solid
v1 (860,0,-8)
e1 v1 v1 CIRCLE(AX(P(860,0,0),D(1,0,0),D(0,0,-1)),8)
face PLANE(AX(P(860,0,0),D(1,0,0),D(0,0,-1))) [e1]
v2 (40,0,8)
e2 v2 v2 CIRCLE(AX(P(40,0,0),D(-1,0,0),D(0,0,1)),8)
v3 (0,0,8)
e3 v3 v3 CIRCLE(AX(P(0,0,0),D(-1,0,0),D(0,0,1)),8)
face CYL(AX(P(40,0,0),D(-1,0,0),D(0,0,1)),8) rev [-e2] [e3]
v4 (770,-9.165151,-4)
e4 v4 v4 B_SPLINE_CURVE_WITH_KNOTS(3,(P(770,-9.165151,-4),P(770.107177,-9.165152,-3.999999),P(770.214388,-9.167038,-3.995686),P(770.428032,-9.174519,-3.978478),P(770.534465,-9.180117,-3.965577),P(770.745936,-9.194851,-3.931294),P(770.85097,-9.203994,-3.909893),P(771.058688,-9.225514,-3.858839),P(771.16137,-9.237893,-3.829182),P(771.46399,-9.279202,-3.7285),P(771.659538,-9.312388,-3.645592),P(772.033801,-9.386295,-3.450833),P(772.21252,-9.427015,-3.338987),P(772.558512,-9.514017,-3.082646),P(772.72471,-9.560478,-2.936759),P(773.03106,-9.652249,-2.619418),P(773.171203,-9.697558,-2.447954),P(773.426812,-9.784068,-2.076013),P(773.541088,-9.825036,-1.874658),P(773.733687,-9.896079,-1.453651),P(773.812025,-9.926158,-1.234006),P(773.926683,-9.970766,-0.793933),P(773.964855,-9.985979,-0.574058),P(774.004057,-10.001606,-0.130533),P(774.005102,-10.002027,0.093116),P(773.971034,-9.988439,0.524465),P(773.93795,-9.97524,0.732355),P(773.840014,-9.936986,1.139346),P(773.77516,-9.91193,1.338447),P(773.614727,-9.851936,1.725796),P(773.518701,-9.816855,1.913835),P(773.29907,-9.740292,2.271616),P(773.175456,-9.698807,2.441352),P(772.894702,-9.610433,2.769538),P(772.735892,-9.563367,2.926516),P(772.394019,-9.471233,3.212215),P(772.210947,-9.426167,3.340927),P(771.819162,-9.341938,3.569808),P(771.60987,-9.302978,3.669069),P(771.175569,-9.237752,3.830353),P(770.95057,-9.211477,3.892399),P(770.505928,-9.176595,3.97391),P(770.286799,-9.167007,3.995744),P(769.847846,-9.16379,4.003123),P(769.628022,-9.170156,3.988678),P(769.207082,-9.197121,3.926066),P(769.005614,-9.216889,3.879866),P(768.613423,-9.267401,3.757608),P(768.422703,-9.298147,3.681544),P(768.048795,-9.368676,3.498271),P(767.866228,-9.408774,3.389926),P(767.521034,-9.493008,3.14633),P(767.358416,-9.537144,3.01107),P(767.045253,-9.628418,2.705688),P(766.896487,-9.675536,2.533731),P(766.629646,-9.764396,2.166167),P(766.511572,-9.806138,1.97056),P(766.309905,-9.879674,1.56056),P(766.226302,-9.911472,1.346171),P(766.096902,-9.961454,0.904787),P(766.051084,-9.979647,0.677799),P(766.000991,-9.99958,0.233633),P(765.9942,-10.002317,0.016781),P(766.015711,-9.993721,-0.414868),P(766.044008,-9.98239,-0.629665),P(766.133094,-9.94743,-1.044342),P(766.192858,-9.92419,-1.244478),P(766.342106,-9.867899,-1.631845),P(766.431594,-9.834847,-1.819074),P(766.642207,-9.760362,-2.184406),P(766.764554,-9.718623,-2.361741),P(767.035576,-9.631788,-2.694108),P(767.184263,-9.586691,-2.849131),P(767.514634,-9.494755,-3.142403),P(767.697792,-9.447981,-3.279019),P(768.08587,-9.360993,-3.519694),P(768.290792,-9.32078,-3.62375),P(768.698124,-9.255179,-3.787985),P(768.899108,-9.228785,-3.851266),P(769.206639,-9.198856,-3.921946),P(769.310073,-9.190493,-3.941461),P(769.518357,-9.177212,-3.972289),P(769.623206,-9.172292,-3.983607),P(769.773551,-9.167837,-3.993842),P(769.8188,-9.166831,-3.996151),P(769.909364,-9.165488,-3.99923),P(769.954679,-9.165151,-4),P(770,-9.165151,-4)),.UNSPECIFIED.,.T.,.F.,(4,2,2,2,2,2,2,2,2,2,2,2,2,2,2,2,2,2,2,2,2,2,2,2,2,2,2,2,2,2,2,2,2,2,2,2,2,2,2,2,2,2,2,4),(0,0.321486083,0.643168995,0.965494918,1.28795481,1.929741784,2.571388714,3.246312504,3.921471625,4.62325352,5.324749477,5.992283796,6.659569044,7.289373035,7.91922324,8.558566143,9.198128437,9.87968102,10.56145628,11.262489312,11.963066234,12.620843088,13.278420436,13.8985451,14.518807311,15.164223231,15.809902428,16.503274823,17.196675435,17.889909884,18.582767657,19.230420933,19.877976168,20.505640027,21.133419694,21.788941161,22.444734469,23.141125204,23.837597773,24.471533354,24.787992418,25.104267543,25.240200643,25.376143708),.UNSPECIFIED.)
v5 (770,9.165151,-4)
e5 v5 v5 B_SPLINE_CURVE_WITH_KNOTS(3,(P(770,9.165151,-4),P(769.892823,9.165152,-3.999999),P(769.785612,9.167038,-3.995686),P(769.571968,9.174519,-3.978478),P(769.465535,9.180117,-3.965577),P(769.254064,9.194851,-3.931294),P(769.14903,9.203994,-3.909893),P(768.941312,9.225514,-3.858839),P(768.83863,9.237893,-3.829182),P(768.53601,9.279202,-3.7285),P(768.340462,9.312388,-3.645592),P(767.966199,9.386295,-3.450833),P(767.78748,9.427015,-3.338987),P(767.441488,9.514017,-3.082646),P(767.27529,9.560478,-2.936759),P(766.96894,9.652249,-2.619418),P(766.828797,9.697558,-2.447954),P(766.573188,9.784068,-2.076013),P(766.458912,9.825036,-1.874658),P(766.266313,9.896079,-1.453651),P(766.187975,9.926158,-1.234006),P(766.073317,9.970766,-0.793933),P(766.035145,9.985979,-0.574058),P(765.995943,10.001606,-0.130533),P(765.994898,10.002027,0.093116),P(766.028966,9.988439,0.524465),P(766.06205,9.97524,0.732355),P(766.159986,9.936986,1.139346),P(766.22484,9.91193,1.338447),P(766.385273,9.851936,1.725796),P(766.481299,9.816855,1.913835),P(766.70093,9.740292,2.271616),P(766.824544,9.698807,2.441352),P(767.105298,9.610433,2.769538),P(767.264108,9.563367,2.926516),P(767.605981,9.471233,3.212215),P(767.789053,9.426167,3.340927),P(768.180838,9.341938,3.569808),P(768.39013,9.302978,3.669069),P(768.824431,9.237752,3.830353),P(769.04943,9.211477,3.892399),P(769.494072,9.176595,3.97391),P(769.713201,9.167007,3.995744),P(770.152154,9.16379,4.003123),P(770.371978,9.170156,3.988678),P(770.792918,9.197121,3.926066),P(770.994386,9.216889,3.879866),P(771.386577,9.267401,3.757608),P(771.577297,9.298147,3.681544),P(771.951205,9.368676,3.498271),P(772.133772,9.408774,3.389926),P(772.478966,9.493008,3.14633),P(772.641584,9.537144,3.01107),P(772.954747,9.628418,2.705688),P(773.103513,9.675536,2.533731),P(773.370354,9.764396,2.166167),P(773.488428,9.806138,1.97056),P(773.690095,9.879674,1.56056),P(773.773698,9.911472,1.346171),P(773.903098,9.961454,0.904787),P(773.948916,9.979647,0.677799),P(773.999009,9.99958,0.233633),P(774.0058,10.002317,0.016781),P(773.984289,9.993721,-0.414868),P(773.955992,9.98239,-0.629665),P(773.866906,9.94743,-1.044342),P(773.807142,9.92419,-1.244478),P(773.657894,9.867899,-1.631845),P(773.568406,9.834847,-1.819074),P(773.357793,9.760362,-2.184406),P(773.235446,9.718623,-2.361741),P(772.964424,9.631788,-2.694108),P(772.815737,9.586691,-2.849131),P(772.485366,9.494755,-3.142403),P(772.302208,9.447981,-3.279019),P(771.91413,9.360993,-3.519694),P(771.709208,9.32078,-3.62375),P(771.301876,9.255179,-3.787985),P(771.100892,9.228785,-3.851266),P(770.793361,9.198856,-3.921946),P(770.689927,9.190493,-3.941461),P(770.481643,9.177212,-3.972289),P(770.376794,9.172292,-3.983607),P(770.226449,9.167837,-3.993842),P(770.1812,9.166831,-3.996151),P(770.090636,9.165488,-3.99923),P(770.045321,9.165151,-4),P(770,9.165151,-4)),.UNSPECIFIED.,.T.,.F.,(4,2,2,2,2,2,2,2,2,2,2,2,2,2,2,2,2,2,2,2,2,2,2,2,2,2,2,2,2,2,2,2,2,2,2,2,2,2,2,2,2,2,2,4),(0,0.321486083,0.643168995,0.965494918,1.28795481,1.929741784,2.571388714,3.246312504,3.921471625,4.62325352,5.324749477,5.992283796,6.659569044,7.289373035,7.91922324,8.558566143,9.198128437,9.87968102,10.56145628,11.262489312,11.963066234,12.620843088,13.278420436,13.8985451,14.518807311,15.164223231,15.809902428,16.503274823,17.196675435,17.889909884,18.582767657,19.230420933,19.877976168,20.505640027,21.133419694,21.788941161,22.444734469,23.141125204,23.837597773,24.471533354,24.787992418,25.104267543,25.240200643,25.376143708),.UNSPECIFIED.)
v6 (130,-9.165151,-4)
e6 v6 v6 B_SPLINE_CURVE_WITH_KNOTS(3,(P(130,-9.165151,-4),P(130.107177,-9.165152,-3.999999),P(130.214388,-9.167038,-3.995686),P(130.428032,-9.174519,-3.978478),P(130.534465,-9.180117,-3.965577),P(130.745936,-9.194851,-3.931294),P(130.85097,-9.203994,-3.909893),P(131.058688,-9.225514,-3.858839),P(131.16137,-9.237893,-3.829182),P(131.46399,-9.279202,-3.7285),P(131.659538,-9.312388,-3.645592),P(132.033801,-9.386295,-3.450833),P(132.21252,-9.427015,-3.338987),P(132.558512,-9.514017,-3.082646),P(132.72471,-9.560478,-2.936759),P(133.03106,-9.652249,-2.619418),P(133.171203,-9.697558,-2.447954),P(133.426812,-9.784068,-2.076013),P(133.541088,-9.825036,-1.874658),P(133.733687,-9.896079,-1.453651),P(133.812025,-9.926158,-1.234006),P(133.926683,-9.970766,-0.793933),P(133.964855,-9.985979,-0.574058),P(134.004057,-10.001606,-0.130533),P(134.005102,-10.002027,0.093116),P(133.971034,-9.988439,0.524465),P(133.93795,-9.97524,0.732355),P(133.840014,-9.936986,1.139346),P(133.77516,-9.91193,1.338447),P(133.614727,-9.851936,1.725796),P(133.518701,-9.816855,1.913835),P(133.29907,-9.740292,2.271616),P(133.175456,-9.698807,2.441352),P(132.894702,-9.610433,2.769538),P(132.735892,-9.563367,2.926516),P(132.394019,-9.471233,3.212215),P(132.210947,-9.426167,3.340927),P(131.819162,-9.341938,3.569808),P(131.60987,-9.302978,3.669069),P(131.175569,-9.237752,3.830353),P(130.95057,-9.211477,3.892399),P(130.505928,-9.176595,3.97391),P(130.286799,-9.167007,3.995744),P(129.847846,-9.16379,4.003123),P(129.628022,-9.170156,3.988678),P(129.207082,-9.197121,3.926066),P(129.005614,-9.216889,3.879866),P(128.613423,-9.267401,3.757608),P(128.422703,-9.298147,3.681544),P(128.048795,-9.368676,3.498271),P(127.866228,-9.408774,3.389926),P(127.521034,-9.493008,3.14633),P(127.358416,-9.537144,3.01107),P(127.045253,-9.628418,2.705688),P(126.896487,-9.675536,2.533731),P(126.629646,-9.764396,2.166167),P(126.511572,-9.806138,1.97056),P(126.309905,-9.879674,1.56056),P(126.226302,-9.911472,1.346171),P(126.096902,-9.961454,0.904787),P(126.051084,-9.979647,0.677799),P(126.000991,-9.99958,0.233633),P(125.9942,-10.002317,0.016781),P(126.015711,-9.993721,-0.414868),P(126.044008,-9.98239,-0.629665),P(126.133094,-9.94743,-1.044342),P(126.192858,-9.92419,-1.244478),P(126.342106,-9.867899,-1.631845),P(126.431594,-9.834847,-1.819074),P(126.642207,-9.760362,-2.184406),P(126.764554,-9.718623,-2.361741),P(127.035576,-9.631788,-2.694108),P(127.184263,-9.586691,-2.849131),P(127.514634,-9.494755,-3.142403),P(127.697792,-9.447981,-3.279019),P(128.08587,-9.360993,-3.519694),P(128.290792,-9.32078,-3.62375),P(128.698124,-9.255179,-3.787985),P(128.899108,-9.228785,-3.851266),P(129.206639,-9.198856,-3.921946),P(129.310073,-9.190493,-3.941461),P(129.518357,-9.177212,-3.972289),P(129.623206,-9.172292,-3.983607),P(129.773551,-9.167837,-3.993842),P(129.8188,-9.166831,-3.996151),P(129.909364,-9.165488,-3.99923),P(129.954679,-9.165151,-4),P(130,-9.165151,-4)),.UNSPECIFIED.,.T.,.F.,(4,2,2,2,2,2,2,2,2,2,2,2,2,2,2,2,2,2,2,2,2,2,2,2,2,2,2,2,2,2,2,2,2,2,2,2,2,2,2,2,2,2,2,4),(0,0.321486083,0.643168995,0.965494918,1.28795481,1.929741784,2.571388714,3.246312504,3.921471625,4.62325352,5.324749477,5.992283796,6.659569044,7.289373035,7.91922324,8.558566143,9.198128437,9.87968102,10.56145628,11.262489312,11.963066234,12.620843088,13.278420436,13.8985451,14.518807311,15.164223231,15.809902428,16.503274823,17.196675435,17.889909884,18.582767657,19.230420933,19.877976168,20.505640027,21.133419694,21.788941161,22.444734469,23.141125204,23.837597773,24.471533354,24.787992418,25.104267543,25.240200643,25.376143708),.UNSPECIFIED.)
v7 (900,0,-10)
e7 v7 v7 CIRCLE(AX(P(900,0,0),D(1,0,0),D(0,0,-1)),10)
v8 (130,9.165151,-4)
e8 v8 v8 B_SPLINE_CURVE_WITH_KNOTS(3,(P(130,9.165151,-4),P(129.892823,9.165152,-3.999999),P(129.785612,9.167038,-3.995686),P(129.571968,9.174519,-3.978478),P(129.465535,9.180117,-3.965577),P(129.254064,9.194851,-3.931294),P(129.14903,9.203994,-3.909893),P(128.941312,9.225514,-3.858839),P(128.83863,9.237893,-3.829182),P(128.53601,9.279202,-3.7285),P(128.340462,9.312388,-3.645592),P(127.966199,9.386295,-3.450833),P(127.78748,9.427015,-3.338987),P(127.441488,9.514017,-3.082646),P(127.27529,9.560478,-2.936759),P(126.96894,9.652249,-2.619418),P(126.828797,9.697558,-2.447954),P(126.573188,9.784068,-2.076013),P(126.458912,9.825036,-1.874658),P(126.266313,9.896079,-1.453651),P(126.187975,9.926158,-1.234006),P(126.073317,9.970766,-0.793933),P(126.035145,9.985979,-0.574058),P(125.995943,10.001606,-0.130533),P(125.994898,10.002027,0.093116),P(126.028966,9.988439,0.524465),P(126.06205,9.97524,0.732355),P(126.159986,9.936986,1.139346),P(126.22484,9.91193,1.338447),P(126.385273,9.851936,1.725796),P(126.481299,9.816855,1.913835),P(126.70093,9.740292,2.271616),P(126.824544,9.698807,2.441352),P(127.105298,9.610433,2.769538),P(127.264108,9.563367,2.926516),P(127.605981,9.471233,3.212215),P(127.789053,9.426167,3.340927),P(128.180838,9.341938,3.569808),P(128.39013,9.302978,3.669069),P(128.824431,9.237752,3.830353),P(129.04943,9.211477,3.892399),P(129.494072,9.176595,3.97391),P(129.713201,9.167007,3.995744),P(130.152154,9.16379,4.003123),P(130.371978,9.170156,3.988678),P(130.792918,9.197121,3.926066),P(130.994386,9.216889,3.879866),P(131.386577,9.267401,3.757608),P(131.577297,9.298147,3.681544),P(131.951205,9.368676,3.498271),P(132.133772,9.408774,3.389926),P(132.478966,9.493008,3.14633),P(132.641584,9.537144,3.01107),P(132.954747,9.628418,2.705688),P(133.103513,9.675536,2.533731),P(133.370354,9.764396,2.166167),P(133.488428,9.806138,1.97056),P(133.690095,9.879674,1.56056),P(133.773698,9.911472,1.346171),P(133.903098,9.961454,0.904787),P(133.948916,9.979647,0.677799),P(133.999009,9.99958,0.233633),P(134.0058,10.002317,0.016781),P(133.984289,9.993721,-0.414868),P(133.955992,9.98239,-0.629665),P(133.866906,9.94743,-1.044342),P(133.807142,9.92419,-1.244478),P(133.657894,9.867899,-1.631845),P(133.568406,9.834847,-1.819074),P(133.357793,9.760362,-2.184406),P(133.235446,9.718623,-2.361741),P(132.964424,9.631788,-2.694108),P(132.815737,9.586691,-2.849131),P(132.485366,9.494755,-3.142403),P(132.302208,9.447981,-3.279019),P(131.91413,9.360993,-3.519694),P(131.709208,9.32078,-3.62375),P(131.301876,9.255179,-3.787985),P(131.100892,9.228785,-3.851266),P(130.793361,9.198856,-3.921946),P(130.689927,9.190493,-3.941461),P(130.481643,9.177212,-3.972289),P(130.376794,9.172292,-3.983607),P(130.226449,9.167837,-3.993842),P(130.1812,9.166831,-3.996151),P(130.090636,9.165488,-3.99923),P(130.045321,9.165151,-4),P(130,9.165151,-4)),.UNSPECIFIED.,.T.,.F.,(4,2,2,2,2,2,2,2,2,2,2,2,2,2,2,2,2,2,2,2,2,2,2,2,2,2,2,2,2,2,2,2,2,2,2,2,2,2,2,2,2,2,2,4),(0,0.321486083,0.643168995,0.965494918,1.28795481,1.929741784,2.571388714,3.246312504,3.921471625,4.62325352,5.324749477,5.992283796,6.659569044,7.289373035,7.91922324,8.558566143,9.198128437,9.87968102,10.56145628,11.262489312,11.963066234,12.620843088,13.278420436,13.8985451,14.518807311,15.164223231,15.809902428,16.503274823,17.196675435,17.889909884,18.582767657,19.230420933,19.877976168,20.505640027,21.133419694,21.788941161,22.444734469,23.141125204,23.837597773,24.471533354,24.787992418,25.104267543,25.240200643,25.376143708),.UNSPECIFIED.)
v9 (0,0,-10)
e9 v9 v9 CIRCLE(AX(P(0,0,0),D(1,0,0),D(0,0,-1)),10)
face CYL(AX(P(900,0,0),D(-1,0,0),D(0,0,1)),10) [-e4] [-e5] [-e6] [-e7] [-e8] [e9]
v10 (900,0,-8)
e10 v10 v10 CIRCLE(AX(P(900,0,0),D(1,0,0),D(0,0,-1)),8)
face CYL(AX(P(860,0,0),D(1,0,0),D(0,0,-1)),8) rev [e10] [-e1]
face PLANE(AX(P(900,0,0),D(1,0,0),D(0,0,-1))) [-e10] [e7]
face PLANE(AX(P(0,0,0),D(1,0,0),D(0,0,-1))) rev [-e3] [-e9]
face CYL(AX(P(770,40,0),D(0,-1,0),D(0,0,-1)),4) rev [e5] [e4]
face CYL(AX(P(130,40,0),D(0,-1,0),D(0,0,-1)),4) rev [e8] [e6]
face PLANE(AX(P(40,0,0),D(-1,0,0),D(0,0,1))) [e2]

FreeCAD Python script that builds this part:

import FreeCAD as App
import Part
import Sketcher

doc = App.newDocument("Part")
body = doc.addObject("PartDesign::Body", "Body")

# Sketch on YZ plane
sketch1 = body.newObject("Sketcher::SketchObject", "Sketch")
sketch1.AttachmentSupport = (doc.getObject("YZ_Plane"), [""])
sketch1.MapMode = "FlatFace"
sketch1.addGeometry(Part.Circle(App.Vector(0, 0, 0), App.Vector(0, 0, 1), 10), False)
sketch1.addConstraint([
    Sketcher.Constraint("Coincident", 0, 3, -1, 1),
    Sketcher.Constraint("Diameter", 0, 20.0),
])
pad1 = body.newObject("PartDesign::Pad", "Pad")
pad1.Profile = sketch1
pad1.Length = 900

# Sketch on YZ plane
sketch2 = body.newObject("Sketcher::SketchObject", "Sketch001")
sketch2.AttachmentSupport = (doc.getObject("YZ_Plane"), [""])
sketch2.MapMode = "FlatFace"
sketch2.AttachmentOffset = App.Placement(App.Vector(0, 0, 900), App.Rotation())
sketch2.addGeometry(Part.Circle(App.Vector(0, 0, 0), App.Vector(0, 0, 1), 8), False)
sketch2.addConstraint([
    Sketcher.Constraint("Coincident", 0, 3, -1, 1),
    Sketcher.Constraint("Diameter", 0, 16.0),
])
pocket1 = body.newObject("PartDesign::Pocket", "Pocket")
pocket1.Profile = sketch2
pocket1.Length = 40

# Sketch on YZ plane
sketch3 = body.newObject("Sketcher::SketchObject", "Sketch002")
sketch3.AttachmentSupport = (doc.getObject("YZ_Plane"), [""])
sketch3.MapMode = "FlatFace"
sketch3.AttachmentOffset = App.Placement(App.Vector(0, 0, 40), App.Rotation())
sketch3.addGeometry(Part.Circle(App.Vector(0, 0, 0), App.Vector(0, 0, 1), 8), False)
sketch3.addConstraint([
    Sketcher.Constraint("Coincident", 0, 3, -1, 1),
    Sketcher.Constraint("Diameter", 0, 16.0),
])
pocket2 = body.newObject("PartDesign::Pocket", "Pocket001")
pocket2.Profile = sketch3
pocket2.Length = 40

# Sketch on XZ plane
sketch4 = body.newObject("Sketcher::SketchObject", "Sketch003")
sketch4.AttachmentSupport = (doc.getObject("XZ_Plane"), [""])
sketch4.MapMode = "FlatFace"
sketch4.addGeometry([
    Part.Circle(App.Vector(130, 0, 0), App.Vector(0, 0, 1), 4),
    Part.Circle(App.Vector(770, 0, 0), App.Vector(0, 0, 1), 4),
], False)
sketch4.addConstraint([
    Sketcher.Constraint("Equal", 0, 1),
    Sketcher.Constraint("PointOnObject", 0, 3, -1),
    Sketcher.Constraint("PointOnObject", 1, 3, -1),
    Sketcher.Constraint("Diameter", 0, 8.0),
    Sketcher.Constraint("DistanceX", -1, 1, 0, 3, 130.0),
    Sketcher.Constraint("DistanceX", -1, 1, 1, 3, 770.0),
])
pocket3 = body.newObject("PartDesign::Pocket", "Pocket002")
pocket3.Profile = sketch4
pocket3.Type = "ThroughAll"
pocket3.Midplane = True

doc.recompute()
